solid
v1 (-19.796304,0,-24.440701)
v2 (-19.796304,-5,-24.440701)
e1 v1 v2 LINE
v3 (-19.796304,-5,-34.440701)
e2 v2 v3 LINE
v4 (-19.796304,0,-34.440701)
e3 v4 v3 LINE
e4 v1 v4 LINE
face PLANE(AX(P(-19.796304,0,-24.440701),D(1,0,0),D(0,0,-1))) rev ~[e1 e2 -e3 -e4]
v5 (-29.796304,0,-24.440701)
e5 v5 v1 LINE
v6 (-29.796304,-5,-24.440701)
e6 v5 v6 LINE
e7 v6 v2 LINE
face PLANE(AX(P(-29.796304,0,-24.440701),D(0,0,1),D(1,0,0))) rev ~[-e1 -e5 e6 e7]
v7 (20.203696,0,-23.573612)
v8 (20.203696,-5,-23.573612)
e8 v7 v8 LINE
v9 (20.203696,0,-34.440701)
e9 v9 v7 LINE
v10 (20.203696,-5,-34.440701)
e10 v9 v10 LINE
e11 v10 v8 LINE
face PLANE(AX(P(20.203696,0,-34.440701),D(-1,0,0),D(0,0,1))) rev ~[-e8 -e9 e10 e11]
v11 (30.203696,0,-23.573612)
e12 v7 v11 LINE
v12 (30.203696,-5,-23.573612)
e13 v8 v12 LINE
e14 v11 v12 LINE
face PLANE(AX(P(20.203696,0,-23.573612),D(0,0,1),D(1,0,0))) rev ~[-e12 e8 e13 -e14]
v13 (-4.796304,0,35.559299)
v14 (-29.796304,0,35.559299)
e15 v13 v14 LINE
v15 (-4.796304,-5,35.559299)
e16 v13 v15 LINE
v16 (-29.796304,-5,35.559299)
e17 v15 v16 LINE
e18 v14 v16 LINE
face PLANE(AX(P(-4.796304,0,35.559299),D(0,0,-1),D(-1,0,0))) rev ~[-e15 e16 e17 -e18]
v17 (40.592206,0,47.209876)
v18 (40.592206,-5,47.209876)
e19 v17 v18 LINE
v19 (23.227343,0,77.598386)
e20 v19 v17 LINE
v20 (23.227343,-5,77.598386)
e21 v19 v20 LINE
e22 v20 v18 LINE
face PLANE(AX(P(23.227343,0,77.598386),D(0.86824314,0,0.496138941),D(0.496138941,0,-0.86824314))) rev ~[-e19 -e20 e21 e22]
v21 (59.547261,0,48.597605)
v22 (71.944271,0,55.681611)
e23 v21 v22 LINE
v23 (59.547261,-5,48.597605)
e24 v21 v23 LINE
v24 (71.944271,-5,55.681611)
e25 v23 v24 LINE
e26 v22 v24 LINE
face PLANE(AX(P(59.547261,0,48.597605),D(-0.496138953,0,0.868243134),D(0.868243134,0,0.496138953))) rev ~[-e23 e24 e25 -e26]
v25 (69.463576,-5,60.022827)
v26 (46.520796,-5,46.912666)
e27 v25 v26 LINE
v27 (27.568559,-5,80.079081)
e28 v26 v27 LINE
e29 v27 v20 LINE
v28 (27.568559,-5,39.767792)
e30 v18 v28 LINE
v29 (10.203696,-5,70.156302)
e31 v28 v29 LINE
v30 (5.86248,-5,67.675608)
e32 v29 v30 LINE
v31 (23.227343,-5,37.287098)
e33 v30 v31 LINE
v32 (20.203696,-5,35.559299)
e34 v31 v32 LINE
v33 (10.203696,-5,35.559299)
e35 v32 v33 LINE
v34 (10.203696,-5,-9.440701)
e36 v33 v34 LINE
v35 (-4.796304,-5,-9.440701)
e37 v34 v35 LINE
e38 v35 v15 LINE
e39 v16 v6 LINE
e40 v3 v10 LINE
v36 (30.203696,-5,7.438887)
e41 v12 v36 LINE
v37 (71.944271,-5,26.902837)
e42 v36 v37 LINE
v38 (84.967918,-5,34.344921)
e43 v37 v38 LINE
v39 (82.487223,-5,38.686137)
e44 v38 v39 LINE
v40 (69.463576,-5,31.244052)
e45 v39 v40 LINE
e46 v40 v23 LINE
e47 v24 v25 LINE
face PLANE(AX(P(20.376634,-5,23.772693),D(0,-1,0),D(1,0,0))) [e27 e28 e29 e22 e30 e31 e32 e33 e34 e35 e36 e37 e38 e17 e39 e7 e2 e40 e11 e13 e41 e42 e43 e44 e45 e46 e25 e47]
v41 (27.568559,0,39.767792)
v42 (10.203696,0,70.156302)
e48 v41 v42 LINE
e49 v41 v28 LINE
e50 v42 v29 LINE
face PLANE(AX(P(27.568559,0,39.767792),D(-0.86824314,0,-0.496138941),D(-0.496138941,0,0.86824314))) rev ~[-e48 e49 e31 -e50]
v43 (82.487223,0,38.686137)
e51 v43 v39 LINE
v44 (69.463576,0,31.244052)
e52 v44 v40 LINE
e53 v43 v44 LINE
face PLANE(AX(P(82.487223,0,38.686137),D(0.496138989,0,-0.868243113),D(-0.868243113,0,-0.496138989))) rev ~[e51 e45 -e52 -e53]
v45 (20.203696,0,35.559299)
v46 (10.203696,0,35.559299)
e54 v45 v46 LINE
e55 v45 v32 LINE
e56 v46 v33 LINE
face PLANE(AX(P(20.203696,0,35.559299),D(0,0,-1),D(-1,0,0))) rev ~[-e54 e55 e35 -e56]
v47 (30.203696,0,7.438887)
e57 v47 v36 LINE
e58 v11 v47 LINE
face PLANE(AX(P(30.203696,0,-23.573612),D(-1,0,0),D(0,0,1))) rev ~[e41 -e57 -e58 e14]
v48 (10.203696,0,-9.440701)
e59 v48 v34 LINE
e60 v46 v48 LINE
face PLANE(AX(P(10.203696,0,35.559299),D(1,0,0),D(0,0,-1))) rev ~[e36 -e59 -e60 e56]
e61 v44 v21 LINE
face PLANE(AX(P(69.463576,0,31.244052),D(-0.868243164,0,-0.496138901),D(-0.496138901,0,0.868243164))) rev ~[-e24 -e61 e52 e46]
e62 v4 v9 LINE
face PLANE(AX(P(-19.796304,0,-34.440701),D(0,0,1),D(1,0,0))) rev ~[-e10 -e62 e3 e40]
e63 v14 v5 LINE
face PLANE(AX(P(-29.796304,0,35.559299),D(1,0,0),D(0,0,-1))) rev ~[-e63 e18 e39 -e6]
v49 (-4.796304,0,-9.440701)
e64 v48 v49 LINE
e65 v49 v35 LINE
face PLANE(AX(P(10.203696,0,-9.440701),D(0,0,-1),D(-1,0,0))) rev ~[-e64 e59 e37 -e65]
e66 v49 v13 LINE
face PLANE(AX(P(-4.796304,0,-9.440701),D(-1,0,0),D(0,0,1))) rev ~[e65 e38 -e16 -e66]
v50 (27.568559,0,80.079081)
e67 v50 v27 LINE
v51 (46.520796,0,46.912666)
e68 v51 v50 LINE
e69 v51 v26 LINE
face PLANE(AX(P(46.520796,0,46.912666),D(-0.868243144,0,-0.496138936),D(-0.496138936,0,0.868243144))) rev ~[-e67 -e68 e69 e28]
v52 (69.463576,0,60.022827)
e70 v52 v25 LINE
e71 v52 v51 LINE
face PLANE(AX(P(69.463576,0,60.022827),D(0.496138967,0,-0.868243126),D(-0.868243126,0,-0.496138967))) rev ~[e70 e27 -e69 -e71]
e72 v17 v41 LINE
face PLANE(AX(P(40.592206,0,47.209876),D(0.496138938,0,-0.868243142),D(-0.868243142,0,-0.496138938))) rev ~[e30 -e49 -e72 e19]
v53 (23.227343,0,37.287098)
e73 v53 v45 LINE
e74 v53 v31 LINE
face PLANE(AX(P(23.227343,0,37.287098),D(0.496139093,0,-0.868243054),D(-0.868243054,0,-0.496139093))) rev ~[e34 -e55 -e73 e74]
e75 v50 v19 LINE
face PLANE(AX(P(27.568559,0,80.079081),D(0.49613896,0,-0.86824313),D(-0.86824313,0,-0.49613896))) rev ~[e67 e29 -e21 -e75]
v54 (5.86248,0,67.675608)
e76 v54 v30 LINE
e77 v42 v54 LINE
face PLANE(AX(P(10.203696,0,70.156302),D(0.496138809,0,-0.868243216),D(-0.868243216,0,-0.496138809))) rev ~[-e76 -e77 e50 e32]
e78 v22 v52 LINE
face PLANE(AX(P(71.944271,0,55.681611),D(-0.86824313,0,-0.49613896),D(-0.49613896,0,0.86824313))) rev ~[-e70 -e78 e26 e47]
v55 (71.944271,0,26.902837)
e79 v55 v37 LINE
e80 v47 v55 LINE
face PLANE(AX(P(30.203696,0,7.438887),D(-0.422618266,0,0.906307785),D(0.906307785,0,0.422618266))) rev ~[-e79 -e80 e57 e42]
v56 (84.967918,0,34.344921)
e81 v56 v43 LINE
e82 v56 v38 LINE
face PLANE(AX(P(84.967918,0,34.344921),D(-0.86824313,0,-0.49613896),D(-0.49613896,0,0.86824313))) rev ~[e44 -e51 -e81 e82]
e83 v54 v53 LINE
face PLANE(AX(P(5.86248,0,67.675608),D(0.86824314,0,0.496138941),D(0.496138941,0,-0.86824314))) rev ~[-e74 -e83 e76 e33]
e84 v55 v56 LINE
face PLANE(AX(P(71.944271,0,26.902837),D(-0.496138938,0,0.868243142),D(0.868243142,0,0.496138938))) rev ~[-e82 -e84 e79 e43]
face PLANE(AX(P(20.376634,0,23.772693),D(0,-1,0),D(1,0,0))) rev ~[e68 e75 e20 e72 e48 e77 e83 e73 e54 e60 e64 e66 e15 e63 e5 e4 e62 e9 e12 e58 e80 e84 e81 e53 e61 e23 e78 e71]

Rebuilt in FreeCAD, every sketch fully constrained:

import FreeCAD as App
import Part
import Sketcher
from FreeCAD import Vector
Q = App.Units.Quantity

doc = App.newDocument("Part")
body = doc.addObject("PartDesign::Body", "Body")

# Sketch on XZ plane
sketch1 = doc.addObject("Sketcher::SketchObject", "Sketch")
body.addObject(sketch1)
sketch1.AttachmentSupport = (doc.XZ_Plane, [""])
sketch1.MapMode = "FlatFace"
sketch1.addGeometry(Part.LineSegment(Vector(-19.796304, -24.440701, 0), Vector(-19.796304, -34.440701, 0)), False)
sketch1.addGeometry(Part.LineSegment(Vector(-19.796304, -34.440701, 0), Vector(20.203696, -34.440701, 0)), False)
sketch1.addGeometry(Part.LineSegment(Vector(20.203696, -34.440701, 0), Vector(20.203696, -23.573612, 0)), False)
sketch1.addGeometry(Part.LineSegment(Vector(20.203696, -23.573612, 0), Vector(30.203696, -23.573612, 0)), False)
sketch1.addGeometry(Part.LineSegment(Vector(30.203696, -23.573612, 0), Vector(30.203696, 7.438887, 0)), False)
sketch1.addGeometry(Part.LineSegment(Vector(30.203696, 7.438887, 0), Vector(71.944271, 26.902837, 0)), False)
sketch1.addGeometry(Part.LineSegment(Vector(71.944271, 26.902837, 0), Vector(84.967918, 34.344921, 0)), False)
sketch1.addGeometry(Part.LineSegment(Vector(84.967918, 34.344921, 0), Vector(82.487223, 38.686137, 0)), False)
sketch1.addGeometry(Part.LineSegment(Vector(82.487223, 38.686137, 0), Vector(69.463576, 31.244052, 0)), False)
sketch1.addGeometry(Part.LineSegment(Vector(69.463576, 31.244052, 0), Vector(59.547261, 48.597605, 0)), False)
sketch1.addGeometry(Part.LineSegment(Vector(59.547261, 48.597605, 0), Vector(71.944271, 55.681611, 0)), False)
sketch1.addGeometry(Part.LineSegment(Vector(71.944271, 55.681611, 0), Vector(69.463576, 60.022827, 0)), False)
sketch1.addGeometry(Part.LineSegment(Vector(69.463576, 60.022827, 0), Vector(46.520796, 46.912666, 0)), False)
sketch1.addGeometry(Part.LineSegment(Vector(46.520796, 46.912666, 0), Vector(27.568559, 80.079081, 0)), False)
sketch1.addGeometry(Part.LineSegment(Vector(27.568559, 80.079081, 0), Vector(23.227343, 77.598386, 0)), False)
sketch1.addGeometry(Part.LineSegment(Vector(23.227343, 77.598386, 0), Vector(40.592206, 47.209876, 0)), False)
sketch1.addGeometry(Part.LineSegment(Vector(40.592206, 47.209876, 0), Vector(27.568559, 39.767792, 0)), False)
sketch1.addGeometry(Part.LineSegment(Vector(27.568559, 39.767792, 0), Vector(10.203696, 70.156302, 0)), False)
sketch1.addGeometry(Part.LineSegment(Vector(10.203696, 70.156302, 0), Vector(5.86248, 67.675608, 0)), False)
sketch1.addGeometry(Part.LineSegment(Vector(5.86248, 67.675608, 0), Vector(23.227343, 37.287098, 0)), False)
sketch1.addGeometry(Part.LineSegment(Vector(23.227343, 37.287098, 0), Vector(20.203696, 35.559299, 0)), False)
sketch1.addGeometry(Part.LineSegment(Vector(20.203696, 35.559299, 0), Vector(10.203696, 35.559299, 0)), False)
sketch1.addGeometry(Part.LineSegment(Vector(10.203696, 35.559299, 0), Vector(10.203696, -9.440701, 0)), False)
sketch1.addGeometry(Part.LineSegment(Vector(10.203696, -9.440701, 0), Vector(-4.796304, -9.440701, 0)), False)
sketch1.addGeometry(Part.LineSegment(Vector(-4.796304, -9.440701, 0), Vector(-4.796304, 35.559299, 0)), False)
sketch1.addGeometry(Part.LineSegment(Vector(-4.796304, 35.559299, 0), Vector(-29.796304, 35.559299, 0)), False)
sketch1.addGeometry(Part.LineSegment(Vector(-29.796304, 35.559299, 0), Vector(-29.796304, -24.440701, 0)), False)
sketch1.addGeometry(Part.LineSegment(Vector(-29.796304, -24.440701, 0), Vector(-19.796304, -24.440701, 0)), False)
sketch1.addConstraint(Sketcher.Constraint("Coincident", 0, 2, 1, 1))
sketch1.addConstraint(Sketcher.Constraint("Coincident", 1, 2, 2, 1))
sketch1.addConstraint(Sketcher.Constraint("Coincident", 2, 2, 3, 1))
sketch1.addConstraint(Sketcher.Constraint("Coincident", 3, 2, 4, 1))
sketch1.addConstraint(Sketcher.Constraint("Coincident", 4, 2, 5, 1))
sketch1.addConstraint(Sketcher.Constraint("Coincident", 5, 2, 6, 1))
sketch1.addConstraint(Sketcher.Constraint("Coincident", 6, 2, 7, 1))
sketch1.addConstraint(Sketcher.Constraint("Coincident", 7, 2, 8, 1))
sketch1.addConstraint(Sketcher.Constraint("Coincident", 8, 2, 9, 1))
sketch1.addConstraint(Sketcher.Constraint("Coincident", 9, 2, 10, 1))
sketch1.addConstraint(Sketcher.Constraint("Coincident", 10, 2, 11, 1))
sketch1.addConstraint(Sketcher.Constraint("Coincident", 11, 2, 12, 1))
sketch1.addConstraint(Sketcher.Constraint("Coincident", 12, 2, 13, 1))
sketch1.addConstraint(Sketcher.Constraint("Coincident", 13, 2, 14, 1))
sketch1.addConstraint(Sketcher.Constraint("Coincident", 14, 2, 15, 1))
sketch1.addConstraint(Sketcher.Constraint("Coincident", 15, 2, 16, 1))
sketch1.addConstraint(Sketcher.Constraint("Coincident", 16, 2, 17, 1))
sketch1.addConstraint(Sketcher.Constraint("Coincident", 17, 2, 18, 1))
sketch1.addConstraint(Sketcher.Constraint("Coincident", 18, 2, 19, 1))
sketch1.addConstraint(Sketcher.Constraint("Coincident", 19, 2, 20, 1))
sketch1.addConstraint(Sketcher.Constraint("Coincident", 20, 2, 21, 1))
sketch1.addConstraint(Sketcher.Constraint("Coincident", 21, 2, 22, 1))
sketch1.addConstraint(Sketcher.Constraint("Coincident", 22, 2, 23, 1))
sketch1.addConstraint(Sketcher.Constraint("Coincident", 23, 2, 24, 1))
sketch1.addConstraint(Sketcher.Constraint("Coincident", 24, 2, 25, 1))
sketch1.addConstraint(Sketcher.Constraint("Coincident", 25, 2, 26, 1))
sketch1.addConstraint(Sketcher.Constraint("Coincident", 26, 2, 27, 1))
sketch1.addConstraint(Sketcher.Constraint("Coincident", 27, 2, 0, 1))
sketch1.addConstraint(Sketcher.Constraint("Vertical", 0))
sketch1.addConstraint(Sketcher.Constraint("Horizontal", 1))
sketch1.addConstraint(Sketcher.Constraint("Vertical", 2))
sketch1.addConstraint(Sketcher.Constraint("Horizontal", 3))
sketch1.addConstraint(Sketcher.Constraint("Vertical", 4))
sketch1.addConstraint(Sketcher.Constraint("Horizontal", 21))
sketch1.addConstraint(Sketcher.Constraint("Vertical", 22))
sketch1.addConstraint(Sketcher.Constraint("Horizontal", 23))
sketch1.addConstraint(Sketcher.Constraint("Vertical", 24))
sketch1.addConstraint(Sketcher.Constraint("Horizontal", 25))
sketch1.addConstraint(Sketcher.Constraint("Vertical", 26))
sketch1.addConstraint(Sketcher.Constraint("Horizontal", 27))
sketch1.addConstraint(Sketcher.Constraint("Perpendicular", 6, 7))
sketch1.addConstraint(Sketcher.Constraint("Perpendicular", 7, 8))
sketch1.addConstraint(Sketcher.Constraint("Perpendicular", 8, 9))
sketch1.addConstraint(Sketcher.Constraint("Perpendicular", 9, 10))
sketch1.addConstraint(Sketcher.Constraint("Perpendicular", 10, 11))
sketch1.addConstraint(Sketcher.Constraint("Perpendicular", 11, 12))
sketch1.addConstraint(Sketcher.Constraint("Perpendicular", 12, 13))
sketch1.addConstraint(Sketcher.Constraint("Perpendicular", 13, 14))
sketch1.addConstraint(Sketcher.Constraint("Perpendicular", 14, 15))
sketch1.addConstraint(Sketcher.Constraint("Perpendicular", 15, 16))
sketch1.addConstraint(Sketcher.Constraint("Perpendicular", 16, 17))
sketch1.addConstraint(Sketcher.Constraint("Perpendicular", 17, 18))
sketch1.addConstraint(Sketcher.Constraint("Perpendicular", 18, 19))
sketch1.addConstraint(Sketcher.Constraint("Perpendicular", 19, 20))
sketch1.addConstraint(Sketcher.Constraint("Horizontal", 21, 2, 24, 2))
sketch1.addConstraint(Sketcher.Constraint("Vertical", 5, 2, 10, 2))
sketch1.addConstraint(Sketcher.Constraint("Vertical", 8, 2, 11, 2))
sketch1.addConstraint(Sketcher.Constraint("Vertical", 13, 2, 16, 2))
sketch1.addConstraint(Sketcher.Constraint("Vertical", 14, 2, 19, 2))
sketch1.addConstraint(Sketcher.Constraint("Vertical", 2, 2, 20, 2))
sketch1.addConstraint(Sketcher.Constraint("Vertical", 17, 2, 21, 2))
sketch1.addConstraint(Sketcher.Constraint("Equal", 3, 21))
sketch1.addConstraint(Sketcher.Constraint("Equal", 21, 27))
sketch1.addConstraint(Sketcher.Constraint("Equal", 27, 0))
sketch1.addConstraint(Sketcher.Constraint("Equal", 6, 8))
sketch1.addConstraint(Sketcher.Constraint("Equal", 11, 14))
sketch1.addConstraint(Sketcher.Constraint("Equal", 8, 16))
sketch1.addConstraint(Sketcher.Constraint("Equal", 15, 17))
sketch1.addConstraint(Sketcher.Constraint("Equal", 14, 18))
sketch1.addConstraint(Sketcher.Constraint("DistanceX", 1, 1, 1, 2, 40.0))
sketch1.addConstraint(Sketcher.Constraint("DistanceX", 3, 1, 3, 2, 10.0))
sketch1.addConstraint(Sketcher.Constraint("DistanceX", 23, 2, 23, 1, 15.0))
sketch1.addConstraint(Sketcher.Constraint("DistanceY", 22, 2, 22, 1, 45.0))
sketch1.addConstraint(Sketcher.Constraint("DistanceY", 26, 2, 26, 1, 60.0))
sketch1.addConstraint(Sketcher.Constraint("Angle", 5, Q("25 deg")))
sketch1.addConstraint(Sketcher.Constraint("Distance", 6, 15.0))
sketch1.addConstraint(Sketcher.Constraint("Distance", 7, 5.0))
sketch1.addConstraint(Sketcher.Constraint("Distance", 15, 35.0))
sketch1.addConstraint(Sketcher.Constraint("DistanceY", 4, 1, 4, 2, 31.012499))
sketch1.addConstraint(Sketcher.Constraint("DistanceY", 2, 1, 2, 2, 10.867089))
sketch1.addConstraint(Sketcher.Constraint("DistanceY", 0, 2, -1, 1, 34.440701))
sketch1.addConstraint(Sketcher.Constraint("DistanceX", 13, 2, 9, 2, 31.978702))
sketch1.addConstraint(Sketcher.Constraint("DistanceX", 17, 2, 12, 2, 36.3171))
sketch1.addConstraint(Sketcher.Constraint("DistanceX", -1, 1, 5, 2, 71.944271))
pad1 = doc.addObject("PartDesign::Pad", "Pad")
body.addObject(pad1)
pad1.Profile = sketch1
pad1.Length = 5

doc.recompute()
